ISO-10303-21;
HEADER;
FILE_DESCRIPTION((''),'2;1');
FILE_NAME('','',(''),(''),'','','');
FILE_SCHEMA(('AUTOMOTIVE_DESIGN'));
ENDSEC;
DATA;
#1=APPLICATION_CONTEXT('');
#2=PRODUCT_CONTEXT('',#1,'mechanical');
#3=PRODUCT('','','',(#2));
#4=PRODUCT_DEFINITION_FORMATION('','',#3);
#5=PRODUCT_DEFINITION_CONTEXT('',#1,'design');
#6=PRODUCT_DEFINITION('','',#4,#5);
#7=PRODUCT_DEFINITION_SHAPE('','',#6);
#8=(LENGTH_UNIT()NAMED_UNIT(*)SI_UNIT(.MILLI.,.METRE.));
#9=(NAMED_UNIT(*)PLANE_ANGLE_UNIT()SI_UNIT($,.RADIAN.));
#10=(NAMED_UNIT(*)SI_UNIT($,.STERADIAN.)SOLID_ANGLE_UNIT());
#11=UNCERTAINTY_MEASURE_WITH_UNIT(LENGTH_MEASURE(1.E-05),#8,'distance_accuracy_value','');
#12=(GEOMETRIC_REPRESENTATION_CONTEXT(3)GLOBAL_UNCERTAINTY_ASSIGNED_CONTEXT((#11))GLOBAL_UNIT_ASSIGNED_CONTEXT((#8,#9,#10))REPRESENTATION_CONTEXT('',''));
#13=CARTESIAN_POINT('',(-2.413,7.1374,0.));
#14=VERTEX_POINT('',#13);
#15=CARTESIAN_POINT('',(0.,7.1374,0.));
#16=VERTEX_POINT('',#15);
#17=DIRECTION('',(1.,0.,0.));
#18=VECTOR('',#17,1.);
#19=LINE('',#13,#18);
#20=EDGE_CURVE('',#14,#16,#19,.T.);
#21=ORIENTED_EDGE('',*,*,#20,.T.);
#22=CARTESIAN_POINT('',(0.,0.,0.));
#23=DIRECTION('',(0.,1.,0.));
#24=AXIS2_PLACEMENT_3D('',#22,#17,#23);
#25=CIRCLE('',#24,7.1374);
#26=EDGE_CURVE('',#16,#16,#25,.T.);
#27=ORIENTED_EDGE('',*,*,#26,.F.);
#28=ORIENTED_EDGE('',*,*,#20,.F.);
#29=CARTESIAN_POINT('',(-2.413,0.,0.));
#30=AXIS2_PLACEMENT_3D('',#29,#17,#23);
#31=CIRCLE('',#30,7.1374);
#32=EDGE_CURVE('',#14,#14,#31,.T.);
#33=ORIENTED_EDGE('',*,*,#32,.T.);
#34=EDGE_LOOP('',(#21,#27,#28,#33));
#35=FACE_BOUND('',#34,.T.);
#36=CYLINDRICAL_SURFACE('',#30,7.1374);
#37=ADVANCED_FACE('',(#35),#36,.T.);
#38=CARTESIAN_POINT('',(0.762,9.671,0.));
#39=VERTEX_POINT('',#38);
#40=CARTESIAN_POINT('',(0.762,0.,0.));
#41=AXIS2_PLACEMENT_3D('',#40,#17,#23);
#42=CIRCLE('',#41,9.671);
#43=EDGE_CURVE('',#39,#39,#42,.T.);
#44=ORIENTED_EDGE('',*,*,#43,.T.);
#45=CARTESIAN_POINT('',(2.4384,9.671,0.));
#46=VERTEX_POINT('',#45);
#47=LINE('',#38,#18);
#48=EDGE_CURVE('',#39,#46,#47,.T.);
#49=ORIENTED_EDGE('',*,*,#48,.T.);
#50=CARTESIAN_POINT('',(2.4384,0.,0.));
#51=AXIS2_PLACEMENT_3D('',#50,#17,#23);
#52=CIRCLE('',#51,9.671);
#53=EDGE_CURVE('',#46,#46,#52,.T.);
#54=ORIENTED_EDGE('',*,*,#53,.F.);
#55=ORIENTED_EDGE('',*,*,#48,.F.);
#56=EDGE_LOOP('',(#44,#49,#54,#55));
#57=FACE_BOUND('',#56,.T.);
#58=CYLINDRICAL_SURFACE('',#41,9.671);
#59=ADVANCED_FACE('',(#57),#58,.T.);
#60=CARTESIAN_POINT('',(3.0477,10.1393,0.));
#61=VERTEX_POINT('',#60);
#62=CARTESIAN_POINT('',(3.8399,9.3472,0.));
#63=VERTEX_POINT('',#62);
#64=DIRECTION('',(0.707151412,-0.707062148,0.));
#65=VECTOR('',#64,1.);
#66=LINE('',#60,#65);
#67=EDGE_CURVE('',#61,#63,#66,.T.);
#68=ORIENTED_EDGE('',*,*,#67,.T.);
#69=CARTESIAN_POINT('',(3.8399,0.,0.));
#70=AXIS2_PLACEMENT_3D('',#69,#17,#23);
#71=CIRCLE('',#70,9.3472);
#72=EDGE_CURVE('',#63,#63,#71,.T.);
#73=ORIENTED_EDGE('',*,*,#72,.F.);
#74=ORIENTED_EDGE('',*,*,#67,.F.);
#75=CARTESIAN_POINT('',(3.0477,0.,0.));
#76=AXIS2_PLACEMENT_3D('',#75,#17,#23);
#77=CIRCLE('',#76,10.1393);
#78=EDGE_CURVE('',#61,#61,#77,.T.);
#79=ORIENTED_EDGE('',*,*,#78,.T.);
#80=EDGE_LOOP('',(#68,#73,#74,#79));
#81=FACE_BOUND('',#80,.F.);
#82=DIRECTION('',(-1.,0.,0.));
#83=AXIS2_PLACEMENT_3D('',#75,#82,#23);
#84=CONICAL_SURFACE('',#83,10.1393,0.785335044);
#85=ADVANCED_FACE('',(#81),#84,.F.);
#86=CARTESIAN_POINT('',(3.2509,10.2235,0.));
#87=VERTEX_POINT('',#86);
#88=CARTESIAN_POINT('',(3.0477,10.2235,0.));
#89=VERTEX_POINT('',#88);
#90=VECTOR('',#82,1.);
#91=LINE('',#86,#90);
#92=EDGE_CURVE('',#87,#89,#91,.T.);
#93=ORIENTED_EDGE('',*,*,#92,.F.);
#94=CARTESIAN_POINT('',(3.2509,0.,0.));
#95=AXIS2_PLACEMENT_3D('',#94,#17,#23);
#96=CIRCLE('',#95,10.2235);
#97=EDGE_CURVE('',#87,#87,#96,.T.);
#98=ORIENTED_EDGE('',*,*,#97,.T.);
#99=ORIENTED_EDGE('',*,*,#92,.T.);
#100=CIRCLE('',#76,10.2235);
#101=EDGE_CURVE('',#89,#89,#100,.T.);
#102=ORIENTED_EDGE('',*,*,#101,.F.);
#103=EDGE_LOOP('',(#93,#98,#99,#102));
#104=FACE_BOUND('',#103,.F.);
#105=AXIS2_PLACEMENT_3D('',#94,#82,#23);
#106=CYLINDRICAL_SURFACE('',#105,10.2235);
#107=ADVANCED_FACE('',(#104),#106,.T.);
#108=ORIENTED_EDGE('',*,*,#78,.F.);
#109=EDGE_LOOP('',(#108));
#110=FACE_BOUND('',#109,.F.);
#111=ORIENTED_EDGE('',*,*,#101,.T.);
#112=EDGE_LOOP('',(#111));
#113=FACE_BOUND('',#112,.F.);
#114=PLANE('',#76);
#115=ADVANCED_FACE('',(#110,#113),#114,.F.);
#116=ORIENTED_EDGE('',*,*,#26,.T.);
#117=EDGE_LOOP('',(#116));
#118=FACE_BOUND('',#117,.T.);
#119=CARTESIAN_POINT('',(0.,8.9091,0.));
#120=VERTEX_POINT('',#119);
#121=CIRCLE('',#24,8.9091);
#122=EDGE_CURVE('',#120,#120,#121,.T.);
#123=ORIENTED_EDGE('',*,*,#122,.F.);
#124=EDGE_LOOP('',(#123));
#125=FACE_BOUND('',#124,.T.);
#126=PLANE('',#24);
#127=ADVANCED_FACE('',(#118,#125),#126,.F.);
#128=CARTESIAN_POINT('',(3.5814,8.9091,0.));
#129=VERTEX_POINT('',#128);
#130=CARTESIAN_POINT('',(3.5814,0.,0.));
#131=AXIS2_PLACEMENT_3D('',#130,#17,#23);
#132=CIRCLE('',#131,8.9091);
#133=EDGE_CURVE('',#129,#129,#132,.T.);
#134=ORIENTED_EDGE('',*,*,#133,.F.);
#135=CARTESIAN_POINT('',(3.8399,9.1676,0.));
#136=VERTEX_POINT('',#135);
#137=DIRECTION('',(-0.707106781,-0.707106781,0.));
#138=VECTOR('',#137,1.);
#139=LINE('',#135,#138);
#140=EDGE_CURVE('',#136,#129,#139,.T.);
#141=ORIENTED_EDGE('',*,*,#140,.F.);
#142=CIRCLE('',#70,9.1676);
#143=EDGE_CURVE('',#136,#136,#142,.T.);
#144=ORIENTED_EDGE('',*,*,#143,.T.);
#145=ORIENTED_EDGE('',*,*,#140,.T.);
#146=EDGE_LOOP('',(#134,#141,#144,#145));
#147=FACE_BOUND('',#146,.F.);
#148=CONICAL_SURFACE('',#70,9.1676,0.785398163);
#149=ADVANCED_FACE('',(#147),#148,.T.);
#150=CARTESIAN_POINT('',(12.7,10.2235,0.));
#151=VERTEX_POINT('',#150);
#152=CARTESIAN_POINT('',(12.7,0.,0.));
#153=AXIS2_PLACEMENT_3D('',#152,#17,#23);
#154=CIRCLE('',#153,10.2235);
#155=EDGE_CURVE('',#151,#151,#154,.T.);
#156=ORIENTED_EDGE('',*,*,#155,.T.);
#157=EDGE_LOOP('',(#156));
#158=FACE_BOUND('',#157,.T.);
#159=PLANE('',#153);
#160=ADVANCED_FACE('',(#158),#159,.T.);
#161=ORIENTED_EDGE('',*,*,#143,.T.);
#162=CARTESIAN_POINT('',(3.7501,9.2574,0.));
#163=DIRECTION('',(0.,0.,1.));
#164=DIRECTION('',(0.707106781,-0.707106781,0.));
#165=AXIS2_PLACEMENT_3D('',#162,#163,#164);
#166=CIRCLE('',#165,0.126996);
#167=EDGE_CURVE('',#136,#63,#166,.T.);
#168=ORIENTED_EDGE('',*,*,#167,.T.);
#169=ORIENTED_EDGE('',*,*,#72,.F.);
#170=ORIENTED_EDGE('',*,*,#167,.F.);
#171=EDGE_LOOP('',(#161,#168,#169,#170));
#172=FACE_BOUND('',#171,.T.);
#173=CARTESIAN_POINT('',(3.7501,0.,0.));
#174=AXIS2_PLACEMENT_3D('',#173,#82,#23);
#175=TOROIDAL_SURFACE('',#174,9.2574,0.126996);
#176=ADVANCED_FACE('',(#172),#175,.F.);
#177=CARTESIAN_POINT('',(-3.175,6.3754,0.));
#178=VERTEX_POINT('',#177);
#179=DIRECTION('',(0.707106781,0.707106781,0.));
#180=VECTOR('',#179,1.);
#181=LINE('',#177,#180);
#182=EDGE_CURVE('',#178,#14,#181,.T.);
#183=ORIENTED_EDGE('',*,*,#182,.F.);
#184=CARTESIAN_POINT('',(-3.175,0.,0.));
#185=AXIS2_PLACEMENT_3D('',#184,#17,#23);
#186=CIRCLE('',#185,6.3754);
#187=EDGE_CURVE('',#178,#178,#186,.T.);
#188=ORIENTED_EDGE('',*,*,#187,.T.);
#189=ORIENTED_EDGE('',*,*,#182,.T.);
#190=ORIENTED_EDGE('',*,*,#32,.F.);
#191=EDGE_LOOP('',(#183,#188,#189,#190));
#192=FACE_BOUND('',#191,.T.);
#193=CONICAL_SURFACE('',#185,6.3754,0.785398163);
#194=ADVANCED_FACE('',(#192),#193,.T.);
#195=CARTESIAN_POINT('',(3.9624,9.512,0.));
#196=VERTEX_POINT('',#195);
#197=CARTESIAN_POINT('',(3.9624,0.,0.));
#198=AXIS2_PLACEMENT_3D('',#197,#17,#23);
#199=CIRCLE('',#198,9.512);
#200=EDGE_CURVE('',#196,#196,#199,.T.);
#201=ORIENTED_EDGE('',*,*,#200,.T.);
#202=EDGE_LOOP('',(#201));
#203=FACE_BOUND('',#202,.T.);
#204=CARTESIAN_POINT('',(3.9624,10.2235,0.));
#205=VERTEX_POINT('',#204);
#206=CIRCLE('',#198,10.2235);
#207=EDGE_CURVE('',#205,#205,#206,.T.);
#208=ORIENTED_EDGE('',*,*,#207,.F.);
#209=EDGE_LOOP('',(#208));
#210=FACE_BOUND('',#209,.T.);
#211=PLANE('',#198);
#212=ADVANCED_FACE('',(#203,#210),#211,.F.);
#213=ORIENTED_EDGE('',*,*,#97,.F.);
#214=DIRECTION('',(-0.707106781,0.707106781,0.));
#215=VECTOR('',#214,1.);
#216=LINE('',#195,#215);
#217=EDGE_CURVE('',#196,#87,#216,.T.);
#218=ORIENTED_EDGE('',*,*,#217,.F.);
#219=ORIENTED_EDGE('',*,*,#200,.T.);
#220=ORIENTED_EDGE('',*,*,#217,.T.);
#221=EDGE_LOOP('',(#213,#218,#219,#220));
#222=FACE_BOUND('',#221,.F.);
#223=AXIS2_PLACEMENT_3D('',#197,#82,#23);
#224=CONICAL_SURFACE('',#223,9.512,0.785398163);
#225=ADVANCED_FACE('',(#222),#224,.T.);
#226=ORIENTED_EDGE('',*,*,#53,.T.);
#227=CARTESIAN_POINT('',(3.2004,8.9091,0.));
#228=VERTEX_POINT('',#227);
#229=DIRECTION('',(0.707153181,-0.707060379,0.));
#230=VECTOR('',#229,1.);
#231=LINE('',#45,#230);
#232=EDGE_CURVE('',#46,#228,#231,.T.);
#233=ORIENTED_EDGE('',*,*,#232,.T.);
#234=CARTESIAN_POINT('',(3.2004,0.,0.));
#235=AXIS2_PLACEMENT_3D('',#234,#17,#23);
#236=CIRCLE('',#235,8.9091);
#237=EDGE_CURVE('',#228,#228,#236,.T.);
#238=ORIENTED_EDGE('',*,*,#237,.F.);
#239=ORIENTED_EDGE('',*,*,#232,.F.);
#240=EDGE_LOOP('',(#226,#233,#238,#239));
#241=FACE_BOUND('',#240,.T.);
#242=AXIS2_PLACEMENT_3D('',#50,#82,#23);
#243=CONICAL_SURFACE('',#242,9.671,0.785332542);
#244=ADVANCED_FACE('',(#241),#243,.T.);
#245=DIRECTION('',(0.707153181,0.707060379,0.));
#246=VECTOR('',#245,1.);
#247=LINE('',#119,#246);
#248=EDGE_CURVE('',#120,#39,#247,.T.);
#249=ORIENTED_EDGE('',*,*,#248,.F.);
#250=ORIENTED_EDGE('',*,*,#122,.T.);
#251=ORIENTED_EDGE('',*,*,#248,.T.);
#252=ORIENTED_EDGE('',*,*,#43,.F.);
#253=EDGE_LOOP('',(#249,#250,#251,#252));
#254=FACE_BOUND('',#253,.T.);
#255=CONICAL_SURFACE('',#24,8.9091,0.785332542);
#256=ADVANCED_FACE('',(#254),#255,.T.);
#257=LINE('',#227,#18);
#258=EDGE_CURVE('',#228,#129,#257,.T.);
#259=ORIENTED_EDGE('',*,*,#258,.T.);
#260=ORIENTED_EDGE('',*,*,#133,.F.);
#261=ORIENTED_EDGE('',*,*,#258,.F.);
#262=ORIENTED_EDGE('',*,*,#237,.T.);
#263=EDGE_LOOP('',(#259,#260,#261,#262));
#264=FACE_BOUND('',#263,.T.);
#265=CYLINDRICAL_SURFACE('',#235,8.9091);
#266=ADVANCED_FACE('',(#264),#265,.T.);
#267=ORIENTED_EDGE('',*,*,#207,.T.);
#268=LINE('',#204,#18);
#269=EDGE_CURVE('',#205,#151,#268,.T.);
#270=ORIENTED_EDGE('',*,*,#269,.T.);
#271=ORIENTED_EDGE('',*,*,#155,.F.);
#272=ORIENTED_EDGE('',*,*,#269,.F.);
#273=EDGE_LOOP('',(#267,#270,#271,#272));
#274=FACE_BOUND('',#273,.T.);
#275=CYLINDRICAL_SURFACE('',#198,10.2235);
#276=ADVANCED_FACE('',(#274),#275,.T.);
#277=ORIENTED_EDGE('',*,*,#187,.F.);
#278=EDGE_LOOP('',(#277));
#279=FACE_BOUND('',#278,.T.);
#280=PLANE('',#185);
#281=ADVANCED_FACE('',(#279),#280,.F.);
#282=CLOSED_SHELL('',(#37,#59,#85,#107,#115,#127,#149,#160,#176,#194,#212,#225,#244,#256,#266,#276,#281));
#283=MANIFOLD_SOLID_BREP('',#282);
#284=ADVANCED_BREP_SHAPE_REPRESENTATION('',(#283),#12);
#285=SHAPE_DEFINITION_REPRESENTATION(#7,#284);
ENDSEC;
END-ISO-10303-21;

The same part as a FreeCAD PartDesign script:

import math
import FreeCAD as App
import Part
import Sketcher
Q = App.Units.Quantity

doc = App.newDocument("Part")
body = doc.addObject("PartDesign::Body", "Body")

sketch1 = body.newObject("Sketcher::SketchObject", "Sketch")
sketch1.AttachmentSupport = (doc.getObject("XY_Plane"), [""])
sketch1.MapMode = "FlatFace"
sketch1.addGeometry([
    Part.LineSegment(App.Vector(0, 0, 0), App.Vector(12.7, 0, 0)),
    Part.LineSegment(App.Vector(12.7, 0, 0), App.Vector(12.7, 10.2, 0)),
    Part.LineSegment(App.Vector(12.7, 10.2, 0), App.Vector(4, 10.2, 0)),
    Part.LineSegment(App.Vector(4, 10.2, 0), App.Vector(4, 8.9, 0)),
    Part.LineSegment(App.Vector(4, 8.9, 0), App.Vector(3.2, 8.9, 0)),
    Part.LineSegment(App.Vector(3.2, 8.9, 0), App.Vector(2.4, 9.7, 0)),
    Part.LineSegment(App.Vector(2.4, 9.7, 0), App.Vector(0.8, 9.7, 0)),
    Part.LineSegment(App.Vector(0.8, 9.7, 0), App.Vector(0, 8.9, 0)),
    Part.LineSegment(App.Vector(0, 8.9, 0), App.Vector(0, 0, 0)),
], False)
sketch1.addConstraint([
    Sketcher.Constraint("Coincident", 0, 2, 1, 1),
    Sketcher.Constraint("Coincident", 1, 2, 2, 1),
    Sketcher.Constraint("Coincident", 2, 2, 3, 1),
    Sketcher.Constraint("Coincident", 3, 2, 4, 1),
    Sketcher.Constraint("Coincident", 4, 2, 5, 1),
    Sketcher.Constraint("Coincident", 5, 2, 6, 1),
    Sketcher.Constraint("Coincident", 6, 2, 7, 1),
    Sketcher.Constraint("Coincident", 7, 2, 8, 1),
    Sketcher.Constraint("Coincident", 8, 2, 0, 1),
    Sketcher.Constraint("Horizontal", 0),
    Sketcher.Constraint("Vertical", 1),
    Sketcher.Constraint("Horizontal", 2),
    Sketcher.Constraint("Vertical", 3),
    Sketcher.Constraint("Horizontal", 4),
    Sketcher.Constraint("Horizontal", 6),
    Sketcher.Constraint("Vertical", 8),
    Sketcher.Constraint("Coincident", 8, 2, -1, 1),
    Sketcher.Constraint("Perpendicular", 5, 7),
    Sketcher.Constraint("Horizontal", 4, 2, 7, 2),
    Sketcher.Constraint("Equal", 5, 7),
    Sketcher.Constraint("DistanceX", 0, 1, 0, 2, Q("0.5 in")),
    Sketcher.Constraint("DistanceX", 4, 2, 4, 1, Q("0.03 in")),
    Sketcher.Constraint("DistanceX", 2, 2, 2, 1, Q("0.344 in")),
    Sketcher.Constraint("DistanceX", 6, 2, 6, 1, Q("0.066 in")),
    Sketcher.Constraint("DistanceY", 1, 1, 1, 2, Q("0.4025 in")),
    Sketcher.Constraint("DistanceY", 3, 2, 3, 1, 1.3144),
])
revolution = body.newObject("PartDesign::Revolution", "Revolution")
revolution.Profile = sketch1
revolution.ReferenceAxis = (sketch1, ["H_Axis"])
revolution.Angle = 360

sketch2 = body.newObject("Sketcher::SketchObject", "Sketch001")
sketch2.AttachmentSupport = (doc.getObject("XY_Plane"), [""])
sketch2.MapMode = "FlatFace"
sketch2.addGeometry([
    Part.LineSegment(App.Vector(3.25, 10.22, 0), App.Vector(3.05, 10.22, 0)),
    Part.LineSegment(App.Vector(3.05, 10.22, 0), App.Vector(3.05, 10.14, 0)),
    Part.LineSegment(App.Vector(3.05, 10.14, 0), App.Vector(3.84, 9.35, 0)),
    Part.ArcOfCircle(Part.Circle(App.Vector(3.75, 9.26, 0), App.Vector(0, 0, 1), 0.13), math.radians(-45), math.radians(45)),
    Part.LineSegment(App.Vector(3.84, 9.17, 0), App.Vector(3.58, 8.91, 0)),
    Part.LineSegment(App.Vector(3.58, 8.91, 0), App.Vector(3.2, 8.91, 0)),
    Part.LineSegment(App.Vector(3.2, 8.91, 0), App.Vector(3.2, 8.65, 0)),
    Part.LineSegment(App.Vector(3.2, 8.65, 0), App.Vector(3.96, 8.65, 0)),
    Part.LineSegment(App.Vector(3.96, 8.65, 0), App.Vector(3.96, 9.51, 0)),
    Part.LineSegment(App.Vector(3.96, 9.51, 0), App.Vector(3.25, 10.22, 0)),
], False)
sketch2.addConstraint([
    Sketcher.Constraint("Coincident", 0, 2, 1, 1),
    Sketcher.Constraint("Coincident", 1, 2, 2, 1),
    Sketcher.Constraint("Tangent", 2, 2, 3, 2),
    Sketcher.Constraint("Tangent", 3, 1, 4, 1),
    Sketcher.Constraint("Coincident", 4, 2, 5, 1),
    Sketcher.Constraint("Coincident", 5, 2, 6, 1),
    Sketcher.Constraint("Coincident", 6, 2, 7, 1),
    Sketcher.Constraint("Coincident", 7, 2, 8, 1),
    Sketcher.Constraint("Coincident", 8, 2, 9, 1),
    Sketcher.Constraint("Coincident", 9, 2, 0, 1),
    Sketcher.Constraint("Horizontal", 0),
    Sketcher.Constraint("Vertical", 1),
    Sketcher.Constraint("Horizontal", 5),
    Sketcher.Constraint("Vertical", 6),
    Sketcher.Constraint("Horizontal", 7),
    Sketcher.Constraint("Vertical", 8),
    Sketcher.Constraint("Perpendicular", 2, 4),
    Sketcher.Constraint("Perpendicular", 4, 9),
    Sketcher.Constraint("Vertical", 2, 2, 3, 1),
    Sketcher.Constraint("Radius", 3, Q("0.005 in")),
    Sketcher.Constraint("DistanceX", 7, 1, 7, 2, Q("0.03 in")),
    Sketcher.Constraint("DistanceY", 6, 2, 6, 1, Q("0.01 in")),
    Sketcher.Constraint("DistanceX", 0, 2, 0, 1, Q("0.008 in")),
    Sketcher.Constraint("DistanceX", 5, 2, 5, 1, Q("0.015 in")),
    Sketcher.Constraint("DistanceX", -1, 1, 0, 2, Q("0.12 in")),
    Sketcher.Constraint("DistanceY", -1, 1, 2, 2, Q("0.368 in")),
    Sketcher.Constraint("DistanceX", -1, 1, 4, 2, Q("0.141 in")),
    Sketcher.Constraint("Distance", 2, Q("0.0441 in")),
    Sketcher.Constraint("DistanceY", 1, 2, 1, 1, 0.0842),
])
revolution2 = body.newObject("PartDesign::Revolution", "Revolution001")
revolution2.Profile = sketch2
revolution2.ReferenceAxis = (sketch2, ["H_Axis"])
revolution2.Angle = 360

sketch3 = body.newObject("Sketcher::SketchObject", "Sketch002")
sketch3.AttachmentSupport = (doc.getObject("XY_Plane"), [""])
sketch3.MapMode = "FlatFace"
sketch3.addGeometry([
    Part.LineSegment(App.Vector(-3.2, 0, 0), App.Vector(0, 0, 0)),
    Part.LineSegment(App.Vector(0, 0, 0), App.Vector(0, 7.1, 0)),
    Part.LineSegment(App.Vector(0, 7.1, 0), App.Vector(-2.4, 7.1, 0)),
    Part.LineSegment(App.Vector(-2.4, 7.1, 0), App.Vector(-3.2, 6.4, 0)),
    Part.LineSegment(App.Vector(-3.2, 6.4, 0), App.Vector(-3.2, 0, 0)),
], False)
sketch3.addConstraint([
    Sketcher.Constraint("Coincident", 0, 2, 1, 1),
    Sketcher.Constraint("Coincident", 1, 2, 2, 1),
    Sketcher.Constraint("Coincident", 2, 2, 3, 1),
    Sketcher.Constraint("Coincident", 3, 2, 4, 1),
    Sketcher.Constraint("Coincident", 4, 2, 0, 1),
    Sketcher.Constraint("Horizontal", 0),
    Sketcher.Constraint("Vertical", 1),
    Sketcher.Constraint("Horizontal", 2),
    Sketcher.Constraint("Vertical", 4),
    Sketcher.Constraint("Coincident", 0, 2, -1, 1),
    Sketcher.Constraint("Angle", 3, Q("-135 deg")),
    Sketcher.Constraint("DistanceX", 0, 1, 0, 2, Q("0.125 in")),
    Sketcher.Constraint("DistanceX", 2, 2, 2, 1, Q("0.095 in")),
    Sketcher.Constraint("DistanceY", 1, 1, 1, 2, Q("0.281 in")),
])
revolution3 = body.newObject("PartDesign::Revolution", "Revolution002")
revolution3.Profile = sketch3
revolution3.ReferenceAxis = (sketch3, ["H_Axis"])
revolution3.Angle = 360

doc.recompute()
